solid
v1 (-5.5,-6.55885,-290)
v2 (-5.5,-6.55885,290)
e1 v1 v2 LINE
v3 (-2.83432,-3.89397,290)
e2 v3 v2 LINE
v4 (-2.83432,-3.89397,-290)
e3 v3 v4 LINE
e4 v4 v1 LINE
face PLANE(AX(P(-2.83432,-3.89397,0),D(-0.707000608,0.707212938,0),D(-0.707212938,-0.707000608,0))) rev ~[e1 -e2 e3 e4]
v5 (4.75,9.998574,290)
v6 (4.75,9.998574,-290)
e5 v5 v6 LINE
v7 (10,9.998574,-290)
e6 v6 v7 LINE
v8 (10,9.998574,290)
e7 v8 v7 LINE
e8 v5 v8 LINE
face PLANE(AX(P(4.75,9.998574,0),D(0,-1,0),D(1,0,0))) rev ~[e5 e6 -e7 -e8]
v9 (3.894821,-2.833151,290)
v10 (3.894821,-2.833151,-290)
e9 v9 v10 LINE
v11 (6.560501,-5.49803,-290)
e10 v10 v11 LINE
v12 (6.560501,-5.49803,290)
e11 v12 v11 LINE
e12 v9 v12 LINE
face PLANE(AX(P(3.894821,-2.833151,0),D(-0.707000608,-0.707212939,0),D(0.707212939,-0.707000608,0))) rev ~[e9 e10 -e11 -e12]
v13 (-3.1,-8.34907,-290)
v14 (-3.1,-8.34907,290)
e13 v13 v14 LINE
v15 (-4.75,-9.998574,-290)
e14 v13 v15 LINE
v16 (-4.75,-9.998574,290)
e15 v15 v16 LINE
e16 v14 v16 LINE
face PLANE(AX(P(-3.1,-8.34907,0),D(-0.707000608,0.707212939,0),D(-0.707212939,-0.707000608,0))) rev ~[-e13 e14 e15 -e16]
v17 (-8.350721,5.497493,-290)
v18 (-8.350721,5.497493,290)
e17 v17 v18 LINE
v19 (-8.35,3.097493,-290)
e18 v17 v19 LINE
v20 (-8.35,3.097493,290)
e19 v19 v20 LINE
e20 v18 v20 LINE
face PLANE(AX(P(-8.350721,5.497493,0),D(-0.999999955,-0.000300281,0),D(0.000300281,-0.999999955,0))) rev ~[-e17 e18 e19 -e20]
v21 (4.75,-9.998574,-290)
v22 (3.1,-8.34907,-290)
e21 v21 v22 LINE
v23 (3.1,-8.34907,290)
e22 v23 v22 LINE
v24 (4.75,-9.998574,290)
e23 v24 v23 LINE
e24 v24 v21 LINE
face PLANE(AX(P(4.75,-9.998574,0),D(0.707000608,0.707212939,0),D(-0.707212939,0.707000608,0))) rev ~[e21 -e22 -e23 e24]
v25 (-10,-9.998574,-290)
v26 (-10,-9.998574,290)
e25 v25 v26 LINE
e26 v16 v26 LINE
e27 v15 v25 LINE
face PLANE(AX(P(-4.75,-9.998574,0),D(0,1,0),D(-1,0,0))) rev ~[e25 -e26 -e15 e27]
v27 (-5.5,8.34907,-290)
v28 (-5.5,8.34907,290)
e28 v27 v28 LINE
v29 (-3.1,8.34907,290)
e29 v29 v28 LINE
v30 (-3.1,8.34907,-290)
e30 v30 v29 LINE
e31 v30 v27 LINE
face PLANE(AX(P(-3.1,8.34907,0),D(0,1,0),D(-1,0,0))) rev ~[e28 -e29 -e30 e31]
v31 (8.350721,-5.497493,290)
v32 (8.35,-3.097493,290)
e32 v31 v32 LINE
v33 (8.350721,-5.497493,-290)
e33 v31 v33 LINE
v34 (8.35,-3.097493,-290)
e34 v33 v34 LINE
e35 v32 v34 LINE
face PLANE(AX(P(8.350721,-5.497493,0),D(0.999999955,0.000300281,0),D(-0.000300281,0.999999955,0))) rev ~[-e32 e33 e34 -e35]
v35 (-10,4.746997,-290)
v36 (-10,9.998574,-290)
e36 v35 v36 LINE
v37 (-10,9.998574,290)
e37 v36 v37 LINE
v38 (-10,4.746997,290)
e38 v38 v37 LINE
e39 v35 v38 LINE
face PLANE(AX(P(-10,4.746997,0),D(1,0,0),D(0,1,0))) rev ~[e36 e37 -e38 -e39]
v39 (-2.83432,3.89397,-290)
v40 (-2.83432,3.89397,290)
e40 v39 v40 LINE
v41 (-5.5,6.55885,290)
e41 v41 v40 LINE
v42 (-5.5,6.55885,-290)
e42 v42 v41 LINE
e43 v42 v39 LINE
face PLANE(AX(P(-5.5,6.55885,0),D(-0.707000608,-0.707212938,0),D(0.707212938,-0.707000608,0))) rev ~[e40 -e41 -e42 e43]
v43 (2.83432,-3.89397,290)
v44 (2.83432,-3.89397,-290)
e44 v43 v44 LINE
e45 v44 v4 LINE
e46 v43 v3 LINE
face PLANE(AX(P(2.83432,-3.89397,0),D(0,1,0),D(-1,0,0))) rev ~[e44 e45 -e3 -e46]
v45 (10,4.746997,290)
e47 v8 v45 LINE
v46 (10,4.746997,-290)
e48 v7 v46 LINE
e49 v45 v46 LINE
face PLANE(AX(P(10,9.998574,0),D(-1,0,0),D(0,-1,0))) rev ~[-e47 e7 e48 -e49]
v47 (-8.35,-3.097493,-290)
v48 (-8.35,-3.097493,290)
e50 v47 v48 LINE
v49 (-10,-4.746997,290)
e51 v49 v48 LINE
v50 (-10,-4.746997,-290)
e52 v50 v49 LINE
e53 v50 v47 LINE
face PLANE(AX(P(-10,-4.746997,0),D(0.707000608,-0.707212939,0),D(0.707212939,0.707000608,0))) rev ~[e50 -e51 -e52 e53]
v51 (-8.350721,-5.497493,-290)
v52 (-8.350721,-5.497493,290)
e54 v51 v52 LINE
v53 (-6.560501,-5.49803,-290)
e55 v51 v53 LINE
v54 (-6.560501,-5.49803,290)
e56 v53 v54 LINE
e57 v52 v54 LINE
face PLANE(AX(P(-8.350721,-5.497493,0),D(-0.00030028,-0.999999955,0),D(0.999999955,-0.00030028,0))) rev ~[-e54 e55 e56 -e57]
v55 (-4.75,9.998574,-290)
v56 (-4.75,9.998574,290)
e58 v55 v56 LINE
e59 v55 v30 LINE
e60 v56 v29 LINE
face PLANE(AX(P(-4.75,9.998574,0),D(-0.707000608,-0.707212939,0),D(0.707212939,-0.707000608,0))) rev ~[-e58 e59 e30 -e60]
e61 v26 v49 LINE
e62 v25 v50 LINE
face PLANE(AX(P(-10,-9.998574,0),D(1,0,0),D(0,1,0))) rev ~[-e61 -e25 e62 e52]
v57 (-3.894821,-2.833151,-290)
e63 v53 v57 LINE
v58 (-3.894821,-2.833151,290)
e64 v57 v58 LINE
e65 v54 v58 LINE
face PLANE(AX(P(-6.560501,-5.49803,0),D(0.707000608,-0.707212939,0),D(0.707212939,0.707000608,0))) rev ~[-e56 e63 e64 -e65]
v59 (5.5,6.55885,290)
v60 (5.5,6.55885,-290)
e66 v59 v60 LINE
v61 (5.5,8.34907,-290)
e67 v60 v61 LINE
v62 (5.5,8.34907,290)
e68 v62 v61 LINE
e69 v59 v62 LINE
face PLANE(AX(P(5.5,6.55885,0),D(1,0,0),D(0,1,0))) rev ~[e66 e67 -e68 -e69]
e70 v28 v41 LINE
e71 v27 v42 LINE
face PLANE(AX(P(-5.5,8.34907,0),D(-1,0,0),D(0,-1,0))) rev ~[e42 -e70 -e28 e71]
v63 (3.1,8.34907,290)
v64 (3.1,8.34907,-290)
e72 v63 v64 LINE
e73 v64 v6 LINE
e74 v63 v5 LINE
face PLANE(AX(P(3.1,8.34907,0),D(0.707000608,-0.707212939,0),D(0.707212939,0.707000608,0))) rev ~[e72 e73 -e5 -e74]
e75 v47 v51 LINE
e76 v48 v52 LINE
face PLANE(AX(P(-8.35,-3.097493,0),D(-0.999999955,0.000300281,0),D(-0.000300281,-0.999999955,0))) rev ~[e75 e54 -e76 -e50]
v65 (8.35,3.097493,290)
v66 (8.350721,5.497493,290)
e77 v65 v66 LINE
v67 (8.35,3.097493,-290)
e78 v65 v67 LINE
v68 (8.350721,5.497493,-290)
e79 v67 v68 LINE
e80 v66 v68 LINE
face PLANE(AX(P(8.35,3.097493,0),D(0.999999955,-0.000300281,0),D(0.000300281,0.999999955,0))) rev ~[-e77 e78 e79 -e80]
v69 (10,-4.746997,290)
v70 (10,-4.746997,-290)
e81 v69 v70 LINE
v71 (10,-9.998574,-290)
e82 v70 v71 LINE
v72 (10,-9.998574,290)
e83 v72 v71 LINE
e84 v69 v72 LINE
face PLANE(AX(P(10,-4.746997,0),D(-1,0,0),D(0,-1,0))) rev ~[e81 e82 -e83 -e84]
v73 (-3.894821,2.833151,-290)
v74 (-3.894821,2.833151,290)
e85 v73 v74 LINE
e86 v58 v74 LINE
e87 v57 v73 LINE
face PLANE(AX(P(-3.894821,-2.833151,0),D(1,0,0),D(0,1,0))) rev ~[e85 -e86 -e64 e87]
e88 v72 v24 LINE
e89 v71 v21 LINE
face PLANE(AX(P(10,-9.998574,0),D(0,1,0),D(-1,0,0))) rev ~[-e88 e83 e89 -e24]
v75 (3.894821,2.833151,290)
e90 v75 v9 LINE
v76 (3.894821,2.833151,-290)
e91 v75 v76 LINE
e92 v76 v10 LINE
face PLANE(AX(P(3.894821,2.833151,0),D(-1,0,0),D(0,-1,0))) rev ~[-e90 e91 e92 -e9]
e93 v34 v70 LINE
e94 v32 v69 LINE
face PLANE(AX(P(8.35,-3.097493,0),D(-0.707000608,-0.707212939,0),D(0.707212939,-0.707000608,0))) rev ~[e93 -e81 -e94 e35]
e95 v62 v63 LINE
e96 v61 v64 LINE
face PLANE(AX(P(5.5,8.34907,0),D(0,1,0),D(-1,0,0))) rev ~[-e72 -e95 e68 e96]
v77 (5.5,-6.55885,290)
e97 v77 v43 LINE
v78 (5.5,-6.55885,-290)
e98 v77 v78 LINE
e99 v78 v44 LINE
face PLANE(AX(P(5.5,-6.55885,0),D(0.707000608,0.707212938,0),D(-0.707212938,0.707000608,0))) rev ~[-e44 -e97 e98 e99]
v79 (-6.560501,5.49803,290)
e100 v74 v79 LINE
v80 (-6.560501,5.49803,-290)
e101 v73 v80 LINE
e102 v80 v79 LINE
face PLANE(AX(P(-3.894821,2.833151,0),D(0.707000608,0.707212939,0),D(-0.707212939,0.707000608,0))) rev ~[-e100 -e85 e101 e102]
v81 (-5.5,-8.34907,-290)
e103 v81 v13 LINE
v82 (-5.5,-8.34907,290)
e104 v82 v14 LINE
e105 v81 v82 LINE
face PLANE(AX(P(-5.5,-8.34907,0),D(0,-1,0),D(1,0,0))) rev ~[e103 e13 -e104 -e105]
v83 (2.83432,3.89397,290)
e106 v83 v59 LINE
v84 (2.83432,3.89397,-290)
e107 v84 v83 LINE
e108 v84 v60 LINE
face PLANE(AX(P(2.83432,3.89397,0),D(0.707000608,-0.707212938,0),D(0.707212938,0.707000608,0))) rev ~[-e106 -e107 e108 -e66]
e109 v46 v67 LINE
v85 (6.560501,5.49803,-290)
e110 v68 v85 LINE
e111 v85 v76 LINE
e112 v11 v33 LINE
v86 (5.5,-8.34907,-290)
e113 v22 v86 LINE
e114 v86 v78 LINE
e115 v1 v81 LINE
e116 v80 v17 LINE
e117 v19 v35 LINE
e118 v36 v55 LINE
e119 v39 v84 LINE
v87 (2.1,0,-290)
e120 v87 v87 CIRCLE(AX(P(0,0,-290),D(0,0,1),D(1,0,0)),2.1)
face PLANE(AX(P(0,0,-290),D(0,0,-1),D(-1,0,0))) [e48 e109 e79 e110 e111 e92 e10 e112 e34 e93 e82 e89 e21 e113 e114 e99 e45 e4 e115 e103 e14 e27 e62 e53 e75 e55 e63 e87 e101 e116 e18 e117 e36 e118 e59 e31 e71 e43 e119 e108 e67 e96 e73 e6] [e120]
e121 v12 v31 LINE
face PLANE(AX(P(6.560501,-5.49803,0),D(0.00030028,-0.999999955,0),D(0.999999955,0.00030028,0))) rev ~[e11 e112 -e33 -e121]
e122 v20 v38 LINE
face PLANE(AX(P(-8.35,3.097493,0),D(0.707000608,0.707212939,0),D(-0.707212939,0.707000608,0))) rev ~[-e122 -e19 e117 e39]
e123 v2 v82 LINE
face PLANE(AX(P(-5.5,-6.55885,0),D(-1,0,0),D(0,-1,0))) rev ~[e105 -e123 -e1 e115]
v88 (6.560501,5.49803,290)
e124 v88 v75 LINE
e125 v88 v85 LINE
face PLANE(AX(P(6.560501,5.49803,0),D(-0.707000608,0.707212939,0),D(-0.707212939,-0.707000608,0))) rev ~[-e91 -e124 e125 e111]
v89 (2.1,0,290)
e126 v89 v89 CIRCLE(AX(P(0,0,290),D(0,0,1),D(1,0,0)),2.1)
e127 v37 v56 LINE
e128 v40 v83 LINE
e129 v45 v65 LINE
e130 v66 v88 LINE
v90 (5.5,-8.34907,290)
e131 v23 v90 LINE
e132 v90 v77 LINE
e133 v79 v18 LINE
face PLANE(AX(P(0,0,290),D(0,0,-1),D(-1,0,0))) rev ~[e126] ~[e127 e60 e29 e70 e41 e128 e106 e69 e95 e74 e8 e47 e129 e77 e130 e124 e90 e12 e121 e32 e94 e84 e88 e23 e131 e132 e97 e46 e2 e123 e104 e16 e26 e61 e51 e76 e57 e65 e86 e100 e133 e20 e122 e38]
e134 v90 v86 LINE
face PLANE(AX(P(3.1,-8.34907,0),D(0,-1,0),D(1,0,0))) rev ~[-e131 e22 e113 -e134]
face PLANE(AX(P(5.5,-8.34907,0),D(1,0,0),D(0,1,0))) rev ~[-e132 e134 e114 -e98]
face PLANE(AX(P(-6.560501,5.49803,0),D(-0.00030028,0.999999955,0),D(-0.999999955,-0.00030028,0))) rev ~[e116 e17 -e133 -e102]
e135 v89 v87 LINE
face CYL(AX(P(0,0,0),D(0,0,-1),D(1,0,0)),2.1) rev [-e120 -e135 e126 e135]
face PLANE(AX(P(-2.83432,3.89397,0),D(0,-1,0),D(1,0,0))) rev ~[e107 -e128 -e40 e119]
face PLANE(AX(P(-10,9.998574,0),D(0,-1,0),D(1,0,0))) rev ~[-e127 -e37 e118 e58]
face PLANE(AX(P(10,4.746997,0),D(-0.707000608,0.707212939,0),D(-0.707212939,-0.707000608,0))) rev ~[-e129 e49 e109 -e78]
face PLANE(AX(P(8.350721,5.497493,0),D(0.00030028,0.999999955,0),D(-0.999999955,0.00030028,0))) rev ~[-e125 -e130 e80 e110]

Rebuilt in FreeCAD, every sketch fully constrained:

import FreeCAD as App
import Part
import Sketcher

V = App.Vector

doc = App.newDocument("Part")
body = doc.addObject("PartDesign::Body", "Body")

# Sketch on XY plane
sketch1 = body.newObject("Sketcher::SketchObject", "Sketch")
sketch1.AttachmentSupport = (doc.getObject("XY_Plane"), [""])
sketch1.MapMode = "FlatFace"
sketch1.addGeometry(Part.LineSegment(V(5.5, 6.6, 0), V(2.8, 3.9, 0)), False)
sketch1.addGeometry(Part.LineSegment(V(2.8, 3.9, 0), V(-2.8, 3.9, 0)), False)
sketch1.addGeometry(Part.LineSegment(V(-2.8, 3.9, 0), V(-5.5, 6.6, 0)), False)
sketch1.addGeometry(Part.LineSegment(V(-5.5, 6.6, 0), V(-5.5, 8.3, 0)), False)
sketch1.addGeometry(Part.LineSegment(V(-5.5, 8.3, 0), V(-3.1, 8.3, 0)), False)
sketch1.addGeometry(Part.LineSegment(V(-3.1, 8.3, 0), V(-4.8, 10, 0)), False)
sketch1.addGeometry(Part.LineSegment(V(-4.8, 10, 0), V(-10, 10, 0)), False)
sketch1.addGeometry(Part.LineSegment(V(-10, 10, 0), V(-10, 4.7, 0)), False)
sketch1.addGeometry(Part.LineSegment(V(-10, 4.7, 0), V(-8.3, 3.1, 0)), False)
sketch1.addGeometry(Part.LineSegment(V(-8.3, 3.1, 0), V(-8.4, 5.5, 0)), False)
sketch1.addGeometry(Part.LineSegment(V(-8.4, 5.5, 0), V(-6.6, 5.5, 0)), False)
sketch1.addGeometry(Part.LineSegment(V(-6.6, 5.5, 0), V(-3.9, 2.8, 0)), False)
sketch1.addGeometry(Part.LineSegment(V(-3.9, 2.8, 0), V(-3.9, -2.8, 0)), False)
sketch1.addGeometry(Part.LineSegment(V(-3.9, -2.8, 0), V(-6.6, -5.5, 0)), False)
sketch1.addGeometry(Part.LineSegment(V(-6.6, -5.5, 0), V(-8.4, -5.5, 0)), False)
sketch1.addGeometry(Part.LineSegment(V(-8.4, -5.5, 0), V(-8.3, -3.1, 0)), False)
sketch1.addGeometry(Part.LineSegment(V(-8.3, -3.1, 0), V(-10, -4.7, 0)), False)
sketch1.addGeometry(Part.LineSegment(V(-10, -4.7, 0), V(-10, -10, 0)), False)
sketch1.addGeometry(Part.LineSegment(V(-10, -10, 0), V(-4.8, -10, 0)), False)
sketch1.addGeometry(Part.LineSegment(V(-4.8, -10, 0), V(-3.1, -8.3, 0)), False)
sketch1.addGeometry(Part.LineSegment(V(-3.1, -8.3, 0), V(-5.5, -8.3, 0)), False)
sketch1.addGeometry(Part.LineSegment(V(-5.5, -8.3, 0), V(-5.5, -6.6, 0)), False)
sketch1.addGeometry(Part.LineSegment(V(-5.5, -6.6, 0), V(-2.8, -3.9, 0)), False)
sketch1.addGeometry(Part.LineSegment(V(-2.8, -3.9, 0), V(2.8, -3.9, 0)), False)
sketch1.addGeometry(Part.LineSegment(V(2.8, -3.9, 0), V(5.5, -6.6, 0)), False)
sketch1.addGeometry(Part.LineSegment(V(5.5, -6.6, 0), V(5.5, -8.3, 0)), False)
sketch1.addGeometry(Part.LineSegment(V(5.5, -8.3, 0), V(3.1, -8.3, 0)), False)
sketch1.addGeometry(Part.LineSegment(V(3.1, -8.3, 0), V(4.8, -10, 0)), False)
sketch1.addGeometry(Part.LineSegment(V(4.8, -10, 0), V(10, -10, 0)), False)
sketch1.addGeometry(Part.LineSegment(V(10, -10, 0), V(10, -4.7, 0)), False)
sketch1.addGeometry(Part.LineSegment(V(10, -4.7, 0), V(8.3, -3.1, 0)), False)
sketch1.addGeometry(Part.LineSegment(V(8.3, -3.1, 0), V(8.4, -5.5, 0)), False)
sketch1.addGeometry(Part.LineSegment(V(8.4, -5.5, 0), V(6.6, -5.5, 0)), False)
sketch1.addGeometry(Part.LineSegment(V(6.6, -5.5, 0), V(3.9, -2.8, 0)), False)
sketch1.addGeometry(Part.LineSegment(V(3.9, -2.8, 0), V(3.9, 2.8, 0)), False)
sketch1.addGeometry(Part.LineSegment(V(3.9, 2.8, 0), V(6.6, 5.5, 0)), False)
sketch1.addGeometry(Part.LineSegment(V(6.6, 5.5, 0), V(8.4, 5.5, 0)), False)
sketch1.addGeometry(Part.LineSegment(V(8.4, 5.5, 0), V(8.3, 3.1, 0)), False)
sketch1.addGeometry(Part.LineSegment(V(8.3, 3.1, 0), V(10, 4.7, 0)), False)
sketch1.addGeometry(Part.LineSegment(V(10, 4.7, 0), V(10, 10, 0)), False)
sketch1.addGeometry(Part.LineSegment(V(10, 10, 0), V(4.8, 10, 0)), False)
sketch1.addGeometry(Part.LineSegment(V(4.8, 10, 0), V(3.1, 8.3, 0)), False)
sketch1.addGeometry(Part.LineSegment(V(3.1, 8.3, 0), V(5.5, 8.3, 0)), False)
sketch1.addGeometry(Part.LineSegment(V(5.5, 8.3, 0), V(5.5, 6.6, 0)), False)
sketch1.addGeometry(Part.Circle(V(0, 0, 0), V(0, 0, 1), 2.1), False)
sketch1.addConstraint(Sketcher.Constraint("Coincident", 0, 2, 1, 1))
sketch1.addConstraint(Sketcher.Constraint("Coincident", 1, 2, 2, 1))
sketch1.addConstraint(Sketcher.Constraint("Coincident", 2, 2, 3, 1))
sketch1.addConstraint(Sketcher.Constraint("Coincident", 3, 2, 4, 1))
sketch1.addConstraint(Sketcher.Constraint("Coincident", 4, 2, 5, 1))
sketch1.addConstraint(Sketcher.Constraint("Coincident", 5, 2, 6, 1))
sketch1.addConstraint(Sketcher.Constraint("Coincident", 6, 2, 7, 1))
sketch1.addConstraint(Sketcher.Constraint("Coincident", 7, 2, 8, 1))
sketch1.addConstraint(Sketcher.Constraint("Coincident", 8, 2, 9, 1))
sketch1.addConstraint(Sketcher.Constraint("Coincident", 9, 2, 10, 1))
sketch1.addConstraint(Sketcher.Constraint("Coincident", 10, 2, 11, 1))
sketch1.addConstraint(Sketcher.Constraint("Coincident", 11, 2, 12, 1))
sketch1.addConstraint(Sketcher.Constraint("Coincident", 12, 2, 13, 1))
sketch1.addConstraint(Sketcher.Constraint("Coincident", 13, 2, 14, 1))
sketch1.addConstraint(Sketcher.Constraint("Coincident", 14, 2, 15, 1))
sketch1.addConstraint(Sketcher.Constraint("Coincident", 15, 2, 16, 1))
sketch1.addConstraint(Sketcher.Constraint("Coincident", 16, 2, 17, 1))
sketch1.addConstraint(Sketcher.Constraint("Coincident", 17, 2, 18, 1))
sketch1.addConstraint(Sketcher.Constraint("Coincident", 18, 2, 19, 1))
sketch1.addConstraint(Sketcher.Constraint("Coincident", 19, 2, 20, 1))
sketch1.addConstraint(Sketcher.Constraint("Coincident", 20, 2, 21, 1))
sketch1.addConstraint(Sketcher.Constraint("Coincident", 21, 2, 22, 1))
sketch1.addConstraint(Sketcher.Constraint("Coincident", 22, 2, 23, 1))
sketch1.addConstraint(Sketcher.Constraint("Coincident", 23, 2, 24, 1))
sketch1.addConstraint(Sketcher.Constraint("Coincident", 24, 2, 25, 1))
sketch1.addConstraint(Sketcher.Constraint("Coincident", 25, 2, 26, 1))
sketch1.addConstraint(Sketcher.Constraint("Coincident", 26, 2, 27, 1))
sketch1.addConstraint(Sketcher.Constraint("Coincident", 27, 2, 28, 1))
sketch1.addConstraint(Sketcher.Constraint("Coincident", 28, 2, 29, 1))
sketch1.addConstraint(Sketcher.Constraint("Coincident", 29, 2, 30, 1))
sketch1.addConstraint(Sketcher.Constraint("Coincident", 30, 2, 31, 1))
sketch1.addConstraint(Sketcher.Constraint("Coincident", 31, 2, 32, 1))
sketch1.addConstraint(Sketcher.Constraint("Coincident", 32, 2, 33, 1))
sketch1.addConstraint(Sketcher.Constraint("Coincident", 33, 2, 34, 1))
sketch1.addConstraint(Sketcher.Constraint("Coincident", 34, 2, 35, 1))
sketch1.addConstraint(Sketcher.Constraint("Coincident", 35, 2, 36, 1))
sketch1.addConstraint(Sketcher.Constraint("Coincident", 36, 2, 37, 1))
sketch1.addConstraint(Sketcher.Constraint("Coincident", 37, 2, 38, 1))
sketch1.addConstraint(Sketcher.Constraint("Coincident", 38, 2, 39, 1))
sketch1.addConstraint(Sketcher.Constraint("Coincident", 39, 2, 40, 1))
sketch1.addConstraint(Sketcher.Constraint("Coincident", 40, 2, 41, 1))
sketch1.addConstraint(Sketcher.Constraint("Coincident", 41, 2, 42, 1))
sketch1.addConstraint(Sketcher.Constraint("Coincident", 42, 2, 43, 1))
sketch1.addConstraint(Sketcher.Constraint("Coincident", 43, 2, 0, 1))
sketch1.addConstraint(Sketcher.Constraint("Horizontal", 1))
sketch1.addConstraint(Sketcher.Constraint("Vertical", 3))
sketch1.addConstraint(Sketcher.Constraint("Horizontal", 4))
sketch1.addConstraint(Sketcher.Constraint("Horizontal", 6))
sketch1.addConstraint(Sketcher.Constraint("Vertical", 7))
sketch1.addConstraint(Sketcher.Constraint("Vertical", 12))
sketch1.addConstraint(Sketcher.Constraint("Vertical", 17))
sketch1.addConstraint(Sketcher.Constraint("Horizontal", 18))
sketch1.addConstraint(Sketcher.Constraint("Horizontal", 20))
sketch1.addConstraint(Sketcher.Constraint("Vertical", 21))
sketch1.addConstraint(Sketcher.Constraint("Horizontal", 23))
sketch1.addConstraint(Sketcher.Constraint("Vertical", 25))
sketch1.addConstraint(Sketcher.Constraint("Horizontal", 26))
sketch1.addConstraint(Sketcher.Constraint("Horizontal", 28))
sketch1.addConstraint(Sketcher.Constraint("Vertical", 29))
sketch1.addConstraint(Sketcher.Constraint("Vertical", 34))
sketch1.addConstraint(Sketcher.Constraint("Vertical", 39))
sketch1.addConstraint(Sketcher.Constraint("Horizontal", 40))
sketch1.addConstraint(Sketcher.Constraint("Horizontal", 42))
sketch1.addConstraint(Sketcher.Constraint("Vertical", 43))
sketch1.addConstraint(Sketcher.Constraint("Coincident", 44, 3, -1, 1))
sketch1.addConstraint(Sketcher.Constraint("Symmetric", 0, 2, 22, 2, -1, 1))
sketch1.addConstraint(Sketcher.Constraint("Symmetric", 2, 2, 24, 2, -1, 1))
sketch1.addConstraint(Sketcher.Constraint("Symmetric", 4, 2, 26, 2, -1, 1))
sketch1.addConstraint(Sketcher.Constraint("Symmetric", 5, 2, 27, 2, -1, 1))
sketch1.addConstraint(Sketcher.Constraint("Symmetric", 7, 2, 29, 2, -1, 1))
sketch1.addConstraint(Sketcher.Constraint("Symmetric", 8, 2, 30, 2, -1, 1))
sketch1.addConstraint(Sketcher.Constraint("Symmetric", 9, 2, 31, 2, -1, 1))
sketch1.addConstraint(Sketcher.Constraint("Symmetric", 10, 2, 32, 2, -1, 1))
sketch1.addConstraint(Sketcher.Constraint("Symmetric", 11, 2, 33, 2, -1, 1))
sketch1.addConstraint(Sketcher.Constraint("Symmetric", 13, 2, 35, 2, -1, 1))
sketch1.addConstraint(Sketcher.Constraint("Symmetric", 14, 2, 36, 2, -1, 1))
sketch1.addConstraint(Sketcher.Constraint("Symmetric", 15, 2, 37, 2, -1, 1))
sketch1.addConstraint(Sketcher.Constraint("Symmetric", 16, 2, 38, 2, -1, 1))
sketch1.addConstraint(Sketcher.Constraint("Symmetric", 18, 2, 40, 2, -1, 1))
sketch1.addConstraint(Sketcher.Constraint("Symmetric", 19, 2, 41, 2, -1, 1))
sketch1.addConstraint(Sketcher.Constraint("Symmetric", 21, 2, 43, 2, -1, 1))
sketch1.addConstraint(Sketcher.Constraint("Symmetric", 21, 2, 24, 2, -2))
sketch1.addConstraint(Sketcher.Constraint("Symmetric", 19, 2, 26, 2, -2))
sketch1.addConstraint(Sketcher.Constraint("Symmetric", 18, 2, 27, 2, -2))
sketch1.addConstraint(Sketcher.Constraint("Symmetric", 16, 2, 29, 2, -2))
sketch1.addConstraint(Sketcher.Constraint("Symmetric", 15, 2, 30, 2, -2))
sketch1.addConstraint(Sketcher.Constraint("Symmetric", 14, 2, 31, 2, -2))
sketch1.addConstraint(Sketcher.Constraint("Symmetric", 13, 2, 32, 2, -2))
sketch1.addConstraint(Sketcher.Constraint("Parallel", 2, 5))
sketch1.addConstraint(Sketcher.Constraint("Parallel", 5, 8))
sketch1.addConstraint(Sketcher.Constraint("Perpendicular", 9, 10))
sketch1.addConstraint(Sketcher.Constraint("Parallel", 8, 11))
sketch1.addConstraint(Sketcher.Constraint("Parallel", 0, 13))
sketch1.addConstraint(Sketcher.Constraint("Parallel", 13, 16))
sketch1.addConstraint(Sketcher.Constraint("Parallel", 11, 24))
sketch1.addConstraint(Sketcher.Constraint("Parallel", 22, 35))
sketch1.addConstraint(Sketcher.Constraint("Equal", 5, 8))
sketch1.addConstraint(Sketcher.Constraint("Equal", 2, 11))
sketch1.addConstraint(Sketcher.Constraint("Diameter", 44, 4.2))
sketch1.addConstraint(Sketcher.Constraint("DistanceX", 4, 1, 4, 2, 2.4))
sketch1.addConstraint(Sketcher.Constraint("DistanceX", 6, 2, -1, 1, 10.0))
sketch1.addConstraint(Sketcher.Constraint("Distance", 9, 2.4))
sketch1.addConstraint(Sketcher.Constraint("DistanceX", 6, 2, 6, 1, 5.25))
sketch1.addConstraint(Sketcher.Constraint("DistanceX", 2, 2, -1, 1, 5.5))
sketch1.addConstraint(Sketcher.Constraint("DistanceY", 12, 2, 12, 1, 5.666302))
sketch1.addConstraint(Sketcher.Constraint("DistanceY", 13, 2, 1, 2, 9.392001))
sketch1.addConstraint(Sketcher.Constraint("DistanceX", 1, 2, 1, 1, 5.668641))
sketch1.addConstraint(Sketcher.Constraint("DistanceY", 3, 1, 3, 2, 1.79022))
sketch1.addConstraint(Sketcher.Constraint("DistanceX", 10, 2, -1, 1, 6.560501))
sketch1.addConstraint(Sketcher.Constraint("DistanceY", 1, 2, 3, 2, 4.455099))
sketch1.addConstraint(Sketcher.Constraint("DistanceX", 14, 2, 12, 2, 4.455899))
pad1 = body.newObject("PartDesign::Pad", "Pad")
pad1.Profile = sketch1
pad1.Length = 580
pad1.Midplane = True

doc.recompute()
